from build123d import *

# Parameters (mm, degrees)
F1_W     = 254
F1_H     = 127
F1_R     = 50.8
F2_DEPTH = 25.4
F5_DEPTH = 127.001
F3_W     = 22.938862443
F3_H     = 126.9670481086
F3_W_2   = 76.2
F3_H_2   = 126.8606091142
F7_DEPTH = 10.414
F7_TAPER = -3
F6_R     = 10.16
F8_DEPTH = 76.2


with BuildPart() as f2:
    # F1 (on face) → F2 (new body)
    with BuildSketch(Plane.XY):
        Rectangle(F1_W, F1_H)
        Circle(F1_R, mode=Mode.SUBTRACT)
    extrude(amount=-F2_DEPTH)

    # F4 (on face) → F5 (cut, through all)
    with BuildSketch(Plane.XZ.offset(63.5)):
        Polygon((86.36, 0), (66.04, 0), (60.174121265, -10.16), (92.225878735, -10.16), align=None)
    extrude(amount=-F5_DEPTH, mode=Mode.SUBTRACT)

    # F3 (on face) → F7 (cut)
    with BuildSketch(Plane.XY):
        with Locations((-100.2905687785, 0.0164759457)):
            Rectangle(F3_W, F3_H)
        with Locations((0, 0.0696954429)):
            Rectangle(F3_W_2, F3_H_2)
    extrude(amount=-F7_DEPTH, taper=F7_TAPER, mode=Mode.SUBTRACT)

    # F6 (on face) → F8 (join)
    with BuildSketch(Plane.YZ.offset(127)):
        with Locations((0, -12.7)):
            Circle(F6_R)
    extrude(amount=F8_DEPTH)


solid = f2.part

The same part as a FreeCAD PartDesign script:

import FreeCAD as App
import Part
import Sketcher
from FreeCAD import Vector
Q = App.Units.Quantity

doc = App.newDocument("Part")
body = doc.addObject("PartDesign::Body", "Body")

sketch1 = doc.addObject("Sketcher::SketchObject", "Sketch")
body.addObject(sketch1)
sketch1.AttachmentSupport = (doc.XY_Plane, [""])
sketch1.MapMode = "FlatFace"
sketch1.addGeometry(Part.LineSegment(Vector(-127, 64, 0), Vector(-127, -64, 0)), False)
sketch1.addGeometry(Part.LineSegment(Vector(-127, -64, 0), Vector(127, -64, 0)), False)
sketch1.addGeometry(Part.LineSegment(Vector(127, -64, 0), Vector(127, 64, 0)), False)
sketch1.addGeometry(Part.LineSegment(Vector(127, 64, 0), Vector(-127, 64, 0)), False)
sketch1.addGeometry(Part.Circle(Vector(0, 0, 0), Vector(0, 0, 1), 51), False)
sketch1.addConstraint(Sketcher.Constraint("Coincident", 0, 2, 1, 1))
sketch1.addConstraint(Sketcher.Constraint("Coincident", 1, 2, 2, 1))
sketch1.addConstraint(Sketcher.Constraint("Coincident", 2, 2, 3, 1))
sketch1.addConstraint(Sketcher.Constraint("Coincident", 3, 2, 0, 1))
sketch1.addConstraint(Sketcher.Constraint("Vertical", 0))
sketch1.addConstraint(Sketcher.Constraint("Horizontal", 1))
sketch1.addConstraint(Sketcher.Constraint("Vertical", 2))
sketch1.addConstraint(Sketcher.Constraint("Horizontal", 3))
sketch1.addConstraint(Sketcher.Constraint("Coincident", 4, 3, -1, 1))
sketch1.addConstraint(Sketcher.Constraint("Symmetric", 0, 2, 2, 2, -1, 1))
sketch1.addConstraint(Sketcher.Constraint("Diameter", 4, Q("4 in")))
sketch1.addConstraint(Sketcher.Constraint("DistanceX", 1, 1, 1, 2, Q("10 in")))
sketch1.addConstraint(Sketcher.Constraint("DistanceY", 0, 2, 0, 1, Q("5 in")))
pad1 = doc.addObject("PartDesign::Pad", "Pad")
body.addObject(pad1)
pad1.Profile = sketch1
pad1.Length = Q("1 in")
pad1.Reversed = True

sketch2 = doc.addObject("Sketcher::SketchObject", "Sketch001")
body.addObject(sketch2)
sketch2.AttachmentSupport = (doc.XZ_Plane, [""])
sketch2.MapMode = "FlatFace"
sketch2.AttachmentOffset = App.Placement(Vector(0, 0, 2.5 * 25.4), App.Rotation())
sketch2.addGeometry(Part.LineSegment(Vector(86, 0, 0), Vector(66, 0, 0)), False)
sketch2.addGeometry(Part.LineSegment(Vector(66, 0, 0), Vector(60, -10, 0)), False)
sketch2.addGeometry(Part.LineSegment(Vector(60, -10, 0), Vector(92, -10, 0)), False)
sketch2.addGeometry(Part.LineSegment(Vector(92, -10, 0), Vector(86, 0, 0)), False)
sketch2.addConstraint(Sketcher.Constraint("Coincident", 0, 2, 1, 1))
sketch2.addConstraint(Sketcher.Constraint("Coincident", 1, 2, 2, 1))
sketch2.addConstraint(Sketcher.Constraint("Coincident", 2, 2, 3, 1))
sketch2.addConstraint(Sketcher.Constraint("Coincident", 3, 2, 0, 1))
sketch2.addConstraint(Sketcher.Constraint("Horizontal", 0))
sketch2.addConstraint(Sketcher.Constraint("Horizontal", 2))
sketch2.addConstraint(Sketcher.Constraint("PointOnObject", 0, 2, -1))
sketch2.addConstraint(Sketcher.Constraint("Equal", 1, 3))
sketch2.addConstraint(Sketcher.Constraint("DistanceX", 0, 2, 0, 1, Q("0.8 in")))
sketch2.addConstraint(Sketcher.Constraint("Angle", 1, Q("-120 deg")))
sketch2.addConstraint(Sketcher.Constraint("DistanceX", -1, 1, 0, 2, Q("2.6 in")))
sketch2.addConstraint(Sketcher.Constraint("DistanceY", 1, 2, -1, 1, Q("0.4 in")))
pocket1 = doc.addObject("PartDesign::Pocket", "Pocket")
body.addObject(pocket1)
pocket1.Profile = sketch2
pocket1.Type = "ThroughAll"

sketch3 = doc.addObject("Sketcher::SketchObject", "Sketch002")
body.addObject(sketch3)
sketch3.AttachmentSupport = (doc.XY_Plane, [""])
sketch3.MapMode = "FlatFace"
sketch3.addGeometry(Part.LineSegment(Vector(-112, 64, 0), Vector(-112, -63, 0)), False)
sketch3.addGeometry(Part.LineSegment(Vector(-112, -63, 0), Vector(-89, -63, 0)), False)
sketch3.addGeometry(Part.LineSegment(Vector(-89, -63, 0), Vector(-89, 64, 0)), False)
sketch3.addGeometry(Part.LineSegment(Vector(-89, 64, 0), Vector(-112, 64, 0)), False)
sketch3.addGeometry(Part.LineSegment(Vector(-38, 64, 0), Vector(-38, -63, 0)), False)
sketch3.addGeometry(Part.LineSegment(Vector(-38, -63, 0), Vector(38, -63, 0)), False)
sketch3.addGeometry(Part.LineSegment(Vector(38, -63, 0), Vector(38, 64, 0)), False)
sketch3.addGeometry(Part.LineSegment(Vector(38, 64, 0), Vector(-38, 64, 0)), False)
sketch3.addConstraint(Sketcher.Constraint("Coincident", 0, 2, 1, 1))
sketch3.addConstraint(Sketcher.Constraint("Coincident", 1, 2, 2, 1))
sketch3.addConstraint(Sketcher.Constraint("Coincident", 2, 2, 3, 1))
sketch3.addConstraint(Sketcher.Constraint("Coincident", 3, 2, 0, 1))
sketch3.addConstraint(Sketcher.Constraint("Coincident", 4, 2, 5, 1))
sketch3.addConstraint(Sketcher.Constraint("Coincident", 5, 2, 6, 1))
sketch3.addConstraint(Sketcher.Constraint("Coincident", 6, 2, 7, 1))
sketch3.addConstraint(Sketcher.Constraint("Coincident", 7, 2, 4, 1))
sketch3.addConstraint(Sketcher.Constraint("Vertical", 0))
sketch3.addConstraint(Sketcher.Constraint("Horizontal", 1))
sketch3.addConstraint(Sketcher.Constraint("Vertical", 2))
sketch3.addConstraint(Sketcher.Constraint("Horizontal", 3))
sketch3.addConstraint(Sketcher.Constraint("Vertical", 4))
sketch3.addConstraint(Sketcher.Constraint("Horizontal", 5))
sketch3.addConstraint(Sketcher.Constraint("Vertical", 6))
sketch3.addConstraint(Sketcher.Constraint("Horizontal", 7))
sketch3.addConstraint(Sketcher.Constraint("Horizontal", 3, 2, 6, 2))
sketch3.addConstraint(Sketcher.Constraint("DistanceX", 5, 1, 5, 2, Q("3 in")))
sketch3.addConstraint(Sketcher.Constraint("DistanceX", 0, 2, -1, 1, Q("4.4 in")))
sketch3.addConstraint(Sketcher.Constraint("DistanceY", -1, 1, 2, 2, Q("2.5 in")))
sketch3.addConstraint(Sketcher.Constraint("DistanceX", 4, 2, -1, 1, Q("1.5 in")))
sketch3.addConstraint(Sketcher.Constraint("DistanceY", 0, 2, 0, 1, 126.967048))
sketch3.addConstraint(Sketcher.Constraint("DistanceY", 4, 2, 4, 1, 126.860609))
sketch3.addConstraint(Sketcher.Constraint("DistanceX", 1, 1, 1, 2, 22.938862))
pocket2 = doc.addObject("PartDesign::Pocket", "Pocket001")
body.addObject(pocket2)
pocket2.Profile = sketch3
pocket2.Length = Q("0.41 in")
pocket2.TaperAngle = 3

sketch4 = doc.addObject("Sketcher::SketchObject", "Sketch003")
body.addObject(sketch4)
sketch4.AttachmentSupport = (doc.YZ_Plane, [""])
sketch4.MapMode = "FlatFace"
sketch4.AttachmentOffset = App.Placement(Vector(0, 0, 5 * 25.4), App.Rotation())
sketch4.addGeometry(Part.Circle(Vector(0, -13, 0), Vector(0, 0, 1), 10), False)
sketch4.addConstraint(Sketcher.Constraint("PointOnObject", 0, 3, -2))
sketch4.addConstraint(Sketcher.Constraint("Diameter", 0, Q("0.8 in")))
sketch4.addConstraint(Sketcher.Constraint("DistanceY", 0, 3, -1, 1, Q("0.5 in")))
pad2 = doc.addObject("PartDesign::Pad", "Pad001")
body.addObject(pad2)
pad2.Profile = sketch4
pad2.Length = Q("3 in")

doc.recompute()
